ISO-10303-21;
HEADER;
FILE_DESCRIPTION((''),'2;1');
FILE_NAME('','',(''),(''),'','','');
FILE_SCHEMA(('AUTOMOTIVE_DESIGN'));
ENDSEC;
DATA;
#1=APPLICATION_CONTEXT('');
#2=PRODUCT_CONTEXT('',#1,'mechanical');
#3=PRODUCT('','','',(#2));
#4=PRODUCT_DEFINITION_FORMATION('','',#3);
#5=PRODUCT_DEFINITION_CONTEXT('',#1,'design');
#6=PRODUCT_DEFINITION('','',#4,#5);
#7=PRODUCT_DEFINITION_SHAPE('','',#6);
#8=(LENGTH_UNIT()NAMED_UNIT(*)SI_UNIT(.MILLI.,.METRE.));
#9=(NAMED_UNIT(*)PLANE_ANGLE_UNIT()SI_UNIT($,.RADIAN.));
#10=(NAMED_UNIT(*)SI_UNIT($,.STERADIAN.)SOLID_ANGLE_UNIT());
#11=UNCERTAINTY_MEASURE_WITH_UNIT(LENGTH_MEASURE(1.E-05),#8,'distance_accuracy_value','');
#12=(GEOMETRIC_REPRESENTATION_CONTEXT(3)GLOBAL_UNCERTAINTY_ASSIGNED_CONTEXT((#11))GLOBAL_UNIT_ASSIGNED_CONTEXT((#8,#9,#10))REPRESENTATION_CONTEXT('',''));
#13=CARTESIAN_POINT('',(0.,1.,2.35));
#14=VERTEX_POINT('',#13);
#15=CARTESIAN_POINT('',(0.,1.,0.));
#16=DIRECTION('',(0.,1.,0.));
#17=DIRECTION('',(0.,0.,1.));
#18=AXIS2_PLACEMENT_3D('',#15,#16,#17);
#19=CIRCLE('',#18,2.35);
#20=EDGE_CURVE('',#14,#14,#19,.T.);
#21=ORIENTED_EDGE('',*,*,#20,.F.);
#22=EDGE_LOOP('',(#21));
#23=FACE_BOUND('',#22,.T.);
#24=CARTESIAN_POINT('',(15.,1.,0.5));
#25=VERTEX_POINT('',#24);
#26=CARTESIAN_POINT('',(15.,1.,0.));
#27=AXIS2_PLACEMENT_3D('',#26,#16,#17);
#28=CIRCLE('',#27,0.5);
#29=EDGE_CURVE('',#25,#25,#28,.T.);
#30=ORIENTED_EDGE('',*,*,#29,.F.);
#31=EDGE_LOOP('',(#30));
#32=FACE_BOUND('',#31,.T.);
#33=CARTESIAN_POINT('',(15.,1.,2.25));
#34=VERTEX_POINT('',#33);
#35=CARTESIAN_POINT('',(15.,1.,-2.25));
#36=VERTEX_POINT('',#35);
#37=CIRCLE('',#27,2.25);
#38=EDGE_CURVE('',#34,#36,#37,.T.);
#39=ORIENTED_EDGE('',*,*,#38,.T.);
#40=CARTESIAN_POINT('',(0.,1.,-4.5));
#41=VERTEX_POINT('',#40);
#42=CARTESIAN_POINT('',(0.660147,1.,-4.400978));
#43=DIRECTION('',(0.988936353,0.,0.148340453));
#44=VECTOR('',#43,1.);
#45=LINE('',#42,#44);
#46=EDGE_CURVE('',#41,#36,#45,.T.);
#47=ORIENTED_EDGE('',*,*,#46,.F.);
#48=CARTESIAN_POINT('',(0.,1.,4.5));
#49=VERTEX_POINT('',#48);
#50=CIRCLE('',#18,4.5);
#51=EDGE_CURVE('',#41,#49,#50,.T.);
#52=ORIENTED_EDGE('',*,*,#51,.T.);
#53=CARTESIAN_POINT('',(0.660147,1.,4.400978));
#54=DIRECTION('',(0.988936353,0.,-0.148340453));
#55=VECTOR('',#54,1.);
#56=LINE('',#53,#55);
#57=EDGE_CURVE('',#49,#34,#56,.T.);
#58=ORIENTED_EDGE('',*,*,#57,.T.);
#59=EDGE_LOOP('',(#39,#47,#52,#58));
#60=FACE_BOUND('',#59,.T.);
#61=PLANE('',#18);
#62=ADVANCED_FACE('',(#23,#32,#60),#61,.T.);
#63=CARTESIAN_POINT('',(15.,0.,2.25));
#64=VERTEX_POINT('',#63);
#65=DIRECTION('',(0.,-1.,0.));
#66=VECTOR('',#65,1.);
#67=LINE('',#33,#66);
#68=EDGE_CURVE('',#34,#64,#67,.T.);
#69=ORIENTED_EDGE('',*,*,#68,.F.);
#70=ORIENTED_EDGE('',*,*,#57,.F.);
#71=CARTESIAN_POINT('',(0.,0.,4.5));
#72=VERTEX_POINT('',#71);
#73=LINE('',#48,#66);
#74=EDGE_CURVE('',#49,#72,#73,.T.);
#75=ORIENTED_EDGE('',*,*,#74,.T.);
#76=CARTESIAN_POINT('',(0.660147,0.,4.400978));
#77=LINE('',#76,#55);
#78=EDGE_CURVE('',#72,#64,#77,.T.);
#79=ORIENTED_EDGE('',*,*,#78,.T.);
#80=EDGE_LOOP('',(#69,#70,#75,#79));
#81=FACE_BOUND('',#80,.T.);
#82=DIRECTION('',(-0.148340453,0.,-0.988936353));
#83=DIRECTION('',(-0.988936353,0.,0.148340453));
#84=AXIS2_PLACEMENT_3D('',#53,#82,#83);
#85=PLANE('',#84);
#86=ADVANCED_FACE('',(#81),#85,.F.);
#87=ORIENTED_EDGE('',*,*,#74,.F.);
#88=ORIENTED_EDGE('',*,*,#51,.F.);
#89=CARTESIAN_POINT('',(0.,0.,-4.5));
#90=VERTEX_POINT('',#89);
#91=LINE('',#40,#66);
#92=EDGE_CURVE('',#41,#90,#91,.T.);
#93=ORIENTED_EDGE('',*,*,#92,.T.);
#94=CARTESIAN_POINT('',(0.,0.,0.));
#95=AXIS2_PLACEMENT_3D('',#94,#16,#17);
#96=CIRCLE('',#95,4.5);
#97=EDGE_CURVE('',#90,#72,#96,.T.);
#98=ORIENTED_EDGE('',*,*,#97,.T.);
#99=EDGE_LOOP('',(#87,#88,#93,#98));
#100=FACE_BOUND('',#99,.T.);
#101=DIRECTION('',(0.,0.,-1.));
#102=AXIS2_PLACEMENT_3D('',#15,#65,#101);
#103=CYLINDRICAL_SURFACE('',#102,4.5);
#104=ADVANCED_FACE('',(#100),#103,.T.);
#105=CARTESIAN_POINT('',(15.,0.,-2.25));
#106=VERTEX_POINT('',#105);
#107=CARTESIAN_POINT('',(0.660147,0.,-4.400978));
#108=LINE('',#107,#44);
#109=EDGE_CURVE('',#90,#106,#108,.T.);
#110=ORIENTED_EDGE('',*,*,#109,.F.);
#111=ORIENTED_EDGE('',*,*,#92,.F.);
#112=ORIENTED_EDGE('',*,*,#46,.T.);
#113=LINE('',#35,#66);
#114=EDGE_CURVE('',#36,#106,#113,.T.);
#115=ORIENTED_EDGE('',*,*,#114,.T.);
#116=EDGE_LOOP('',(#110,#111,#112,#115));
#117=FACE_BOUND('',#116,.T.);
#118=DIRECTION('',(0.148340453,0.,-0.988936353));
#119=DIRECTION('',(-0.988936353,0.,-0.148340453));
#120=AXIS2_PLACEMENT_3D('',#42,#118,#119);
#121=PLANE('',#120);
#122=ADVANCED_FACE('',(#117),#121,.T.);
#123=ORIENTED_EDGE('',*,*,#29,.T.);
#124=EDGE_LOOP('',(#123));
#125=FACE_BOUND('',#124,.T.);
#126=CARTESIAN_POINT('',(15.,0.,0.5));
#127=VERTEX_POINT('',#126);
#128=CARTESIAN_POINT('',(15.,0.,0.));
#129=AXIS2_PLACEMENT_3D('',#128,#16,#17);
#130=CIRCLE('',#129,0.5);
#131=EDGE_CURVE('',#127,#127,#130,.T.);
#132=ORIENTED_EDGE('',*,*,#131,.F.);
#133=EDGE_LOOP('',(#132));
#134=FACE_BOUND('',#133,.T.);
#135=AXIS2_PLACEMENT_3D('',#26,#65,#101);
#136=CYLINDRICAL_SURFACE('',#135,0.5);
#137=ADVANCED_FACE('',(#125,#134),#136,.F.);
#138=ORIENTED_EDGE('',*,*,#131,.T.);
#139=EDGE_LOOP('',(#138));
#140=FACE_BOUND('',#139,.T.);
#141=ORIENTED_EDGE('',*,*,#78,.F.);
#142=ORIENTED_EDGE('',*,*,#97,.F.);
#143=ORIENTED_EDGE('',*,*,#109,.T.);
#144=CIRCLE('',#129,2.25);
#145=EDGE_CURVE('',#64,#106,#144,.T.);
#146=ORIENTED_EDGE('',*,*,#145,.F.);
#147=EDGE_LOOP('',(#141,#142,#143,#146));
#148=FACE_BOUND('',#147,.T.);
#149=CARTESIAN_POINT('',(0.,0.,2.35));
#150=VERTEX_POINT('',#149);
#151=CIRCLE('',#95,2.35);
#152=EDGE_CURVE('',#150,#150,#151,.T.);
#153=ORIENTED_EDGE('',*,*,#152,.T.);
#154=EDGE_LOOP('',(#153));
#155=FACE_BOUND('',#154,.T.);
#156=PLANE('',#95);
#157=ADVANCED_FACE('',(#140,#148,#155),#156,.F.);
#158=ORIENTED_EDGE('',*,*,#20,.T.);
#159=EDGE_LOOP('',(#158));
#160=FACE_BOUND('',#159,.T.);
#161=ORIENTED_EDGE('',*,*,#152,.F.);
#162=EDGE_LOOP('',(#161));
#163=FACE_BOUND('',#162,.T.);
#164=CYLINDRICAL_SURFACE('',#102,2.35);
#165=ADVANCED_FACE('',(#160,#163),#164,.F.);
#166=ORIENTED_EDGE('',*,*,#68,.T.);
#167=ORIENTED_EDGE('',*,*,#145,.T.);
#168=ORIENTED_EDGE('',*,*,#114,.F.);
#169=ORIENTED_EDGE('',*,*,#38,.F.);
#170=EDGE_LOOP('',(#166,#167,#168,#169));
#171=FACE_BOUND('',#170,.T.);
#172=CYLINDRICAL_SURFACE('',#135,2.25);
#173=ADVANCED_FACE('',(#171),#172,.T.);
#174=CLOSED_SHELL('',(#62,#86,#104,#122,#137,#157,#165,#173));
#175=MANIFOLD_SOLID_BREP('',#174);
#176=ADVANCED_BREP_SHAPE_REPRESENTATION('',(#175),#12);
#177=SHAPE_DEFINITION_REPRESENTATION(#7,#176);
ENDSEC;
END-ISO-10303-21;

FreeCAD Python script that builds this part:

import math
import FreeCAD as App
import Part
import Sketcher

V = App.Vector

doc = App.newDocument("Part")
body = doc.addObject("PartDesign::Body", "Body")

# Sketch on XZ plane
sketch1 = body.newObject("Sketcher::SketchObject", "Sketch")
sketch1.AttachmentSupport = (doc.getObject("XZ_Plane"), [""])
sketch1.MapMode = "FlatFace"
sketch1.addGeometry([
    Part.LineSegment(V(1.3, -4.3, 0), V(0, -4.5, 0)),  # 0
    Part.ArcOfCircle(Part.Circle(V(0, 0, 0), V(0, 0, 1), 4.5), math.radians(90), math.radians(270)),  # 1
    Part.LineSegment(V(0, 4.5, 0), V(1.3, 4.3, 0)),  # 2
    Part.LineSegment(V(1.3, 4.3, 0), V(15, 2.2, 0)),  # 3
    Part.ArcOfCircle(Part.Circle(V(15, 0, 0), V(0, 0, 1), 2.2), math.radians(-90), math.radians(90)),  # 4
    Part.LineSegment(V(15, -2.2, 0), V(1.3, -4.3, 0)),  # 5
    Part.Circle(V(0, 0, 0), V(0, 0, 1), 2.4),  # 6
    Part.Circle(V(15, 0, 0), V(0, 0, 1), 0.5),  # 7
], False)
sketch1.addConstraint([
    Sketcher.Constraint("Coincident", 0, 2, 1, 2),
    Sketcher.Constraint("Coincident", 1, 1, 2, 1),
    Sketcher.Constraint("Coincident", 2, 2, 3, 1),
    Sketcher.Constraint("Coincident", 3, 2, 4, 2),
    Sketcher.Constraint("Coincident", 4, 1, 5, 1),
    Sketcher.Constraint("Coincident", 5, 2, 0, 1),
    Sketcher.Constraint("Coincident", 1, 3, -1, 1),
    Sketcher.Constraint("Coincident", 6, 3, -1, 1),
    Sketcher.Constraint("Coincident", 7, 3, 4, 3),
    Sketcher.Constraint("Symmetric", 3, 2, 4, 1, -1),
    Sketcher.Constraint("Symmetric", 2, 2, 5, 2, -1),
    Sketcher.Constraint("PointOnObject", 0, 2, -2),
    Sketcher.Constraint("PointOnObject", 1, 1, -2),
    Sketcher.Constraint("Parallel", 2, 3),
    Sketcher.Constraint("Vertical", 7, 3, 3, 2),
    Sketcher.Constraint("Diameter", 7, 1.0),
    Sketcher.Constraint("Diameter", 6, 4.7),
    Sketcher.Constraint("Radius", 1, 4.5),
    Sketcher.Constraint("Radius", 4, 2.25),
    Sketcher.Constraint("DistanceX", -1, 1, 4, 3, 15.0),
    Sketcher.Constraint("DistanceY", 5, 2, 2, 2, 8.603912),
])
pad1 = body.newObject("PartDesign::Pad", "Pad")
pad1.Profile = sketch1
pad1.Length = 1
pad1.Reversed = True

doc.recompute()
